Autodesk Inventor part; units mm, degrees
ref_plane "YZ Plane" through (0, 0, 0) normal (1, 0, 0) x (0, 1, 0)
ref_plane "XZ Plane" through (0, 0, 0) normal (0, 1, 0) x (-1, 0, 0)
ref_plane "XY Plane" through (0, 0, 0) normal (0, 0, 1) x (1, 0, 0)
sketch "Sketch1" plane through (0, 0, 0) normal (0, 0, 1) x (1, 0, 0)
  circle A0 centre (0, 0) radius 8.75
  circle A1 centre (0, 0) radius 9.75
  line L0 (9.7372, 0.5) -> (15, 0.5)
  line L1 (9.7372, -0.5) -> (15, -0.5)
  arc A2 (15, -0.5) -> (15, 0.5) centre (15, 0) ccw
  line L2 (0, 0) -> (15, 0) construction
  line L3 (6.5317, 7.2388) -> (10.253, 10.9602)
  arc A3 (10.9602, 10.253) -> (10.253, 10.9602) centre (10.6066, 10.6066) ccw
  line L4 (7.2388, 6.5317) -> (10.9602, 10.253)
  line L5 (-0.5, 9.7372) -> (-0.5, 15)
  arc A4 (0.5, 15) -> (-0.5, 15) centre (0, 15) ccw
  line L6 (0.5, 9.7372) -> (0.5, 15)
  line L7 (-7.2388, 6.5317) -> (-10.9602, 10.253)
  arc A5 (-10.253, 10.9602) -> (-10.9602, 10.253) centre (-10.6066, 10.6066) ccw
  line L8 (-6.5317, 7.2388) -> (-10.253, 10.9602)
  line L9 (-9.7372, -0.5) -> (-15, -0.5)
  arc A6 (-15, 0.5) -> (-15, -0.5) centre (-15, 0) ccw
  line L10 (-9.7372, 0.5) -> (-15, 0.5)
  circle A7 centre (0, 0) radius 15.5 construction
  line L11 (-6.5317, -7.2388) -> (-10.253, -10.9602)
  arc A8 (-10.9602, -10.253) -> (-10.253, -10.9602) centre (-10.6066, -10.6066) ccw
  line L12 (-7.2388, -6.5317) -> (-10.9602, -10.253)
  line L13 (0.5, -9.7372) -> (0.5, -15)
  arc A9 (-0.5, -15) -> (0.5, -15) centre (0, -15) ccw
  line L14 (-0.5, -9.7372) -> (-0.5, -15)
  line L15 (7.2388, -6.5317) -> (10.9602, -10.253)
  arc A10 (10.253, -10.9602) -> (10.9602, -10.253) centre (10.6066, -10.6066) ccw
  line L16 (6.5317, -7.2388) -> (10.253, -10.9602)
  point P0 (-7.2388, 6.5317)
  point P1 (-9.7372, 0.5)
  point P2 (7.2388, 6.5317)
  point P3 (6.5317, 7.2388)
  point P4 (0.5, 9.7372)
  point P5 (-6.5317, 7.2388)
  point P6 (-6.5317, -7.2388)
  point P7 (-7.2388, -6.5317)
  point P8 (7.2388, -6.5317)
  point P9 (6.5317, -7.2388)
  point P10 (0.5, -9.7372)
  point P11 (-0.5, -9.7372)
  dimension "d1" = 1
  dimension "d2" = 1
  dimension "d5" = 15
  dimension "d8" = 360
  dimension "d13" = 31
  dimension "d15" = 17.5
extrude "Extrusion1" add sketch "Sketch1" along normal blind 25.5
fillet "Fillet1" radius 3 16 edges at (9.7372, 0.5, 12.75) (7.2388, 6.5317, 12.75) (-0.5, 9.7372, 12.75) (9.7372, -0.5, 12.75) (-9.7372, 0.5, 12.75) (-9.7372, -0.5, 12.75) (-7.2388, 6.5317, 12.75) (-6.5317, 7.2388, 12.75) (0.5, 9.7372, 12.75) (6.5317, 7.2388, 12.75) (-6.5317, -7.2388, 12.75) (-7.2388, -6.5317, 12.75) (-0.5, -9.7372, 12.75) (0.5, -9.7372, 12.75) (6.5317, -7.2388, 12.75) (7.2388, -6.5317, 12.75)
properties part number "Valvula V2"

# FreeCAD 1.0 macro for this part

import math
import FreeCAD as App
import Part
import Sketcher
Q = App.Units.Quantity


def edges_at(feature, points):
    """Names of the edges that pass closest to the given points."""
    edges = feature.Shape.Edges
    near = lambda p: min(range(len(edges)), key=lambda i: edges[i].distToShape(Part.Vertex(*p))[0])
    return sorted({f"Edge{near(p) + 1}" for p in points})

doc = App.newDocument("Part")
body = doc.addObject("PartDesign::Body", "Body")

sketch1 = body.newObject("Sketcher::SketchObject", "Sketch")
sketch1.AttachmentSupport = (doc.getObject("XY_Plane"), [""])
sketch1.MapMode = "FlatFace"
sketch1.addGeometry([
    Part.ArcOfCircle(Part.Circle(App.Vector(0, 0, 0), App.Vector(0, 0, 1), 9.8), math.radians(-42), math.radians(-3)),
    Part.LineSegment(App.Vector(9.7, -0.5, 0), App.Vector(15, -0.5, 0)),
    Part.ArcOfCircle(Part.Circle(App.Vector(15, 0, 0), App.Vector(0, 0, 1), 0.5), math.radians(-90), math.radians(90)),
    Part.LineSegment(App.Vector(15, 0.5, 0), App.Vector(9.7, 0.5, 0)),
    Part.ArcOfCircle(Part.Circle(App.Vector(0, 0, 0), App.Vector(0, 0, 1), 9.8), math.radians(3), math.radians(42)),
    Part.LineSegment(App.Vector(7.2, 6.5, 0), App.Vector(11, 10.3, 0)),
    Part.ArcOfCircle(Part.Circle(App.Vector(10.6, 10.6, 0), App.Vector(0, 0, 1), 0.5), math.radians(-45), math.radians(135)),
    Part.LineSegment(App.Vector(10.3, 11, 0), App.Vector(6.5, 7.2, 0)),
    Part.ArcOfCircle(Part.Circle(App.Vector(0, 0, 0), App.Vector(0, 0, 1), 9.8), math.radians(48), math.radians(87)),
    Part.LineSegment(App.Vector(0.5, 9.7, 0), App.Vector(0.5, 15, 0)),
    Part.ArcOfCircle(Part.Circle(App.Vector(0, 15, 0), App.Vector(0, 0, 1), 0.5), math.radians(0), math.radians(180)),
    Part.LineSegment(App.Vector(-0.5, 15, 0), App.Vector(-0.5, 9.7, 0)),
    Part.ArcOfCircle(Part.Circle(App.Vector(0, 0, 0), App.Vector(0, 0, 1), 9.8), math.radians(93), math.radians(132)),
    Part.LineSegment(App.Vector(-6.5, 7.2, 0), App.Vector(-10.3, 11, 0)),
    Part.ArcOfCircle(Part.Circle(App.Vector(-10.6, 10.6, 0), App.Vector(0, 0, 1), 0.5), math.radians(45), math.radians(225)),
    Part.LineSegment(App.Vector(-11, 10.3, 0), App.Vector(-7.2, 6.5, 0)),
    Part.ArcOfCircle(Part.Circle(App.Vector(0, 0, 0), App.Vector(0, 0, 1), 9.8), math.radians(138), math.radians(177)),
    Part.LineSegment(App.Vector(-9.7, 0.5, 0), App.Vector(-15, 0.5, 0)),
    Part.ArcOfCircle(Part.Circle(App.Vector(-15, 0, 0), App.Vector(0, 0, 1), 0.5), math.radians(90), math.radians(270)),
    Part.LineSegment(App.Vector(-15, -0.5, 0), App.Vector(-9.7, -0.5, 0)),
    Part.ArcOfCircle(Part.Circle(App.Vector(0, 0, 0), App.Vector(0, 0, 1), 9.8), math.radians(-177), math.radians(-138)),
    Part.LineSegment(App.Vector(-7.2, -6.5, 0), App.Vector(-11, -10.3, 0)),
    Part.ArcOfCircle(Part.Circle(App.Vector(-10.6, -10.6, 0), App.Vector(0, 0, 1), 0.5), math.radians(135), math.radians(315)),
    Part.LineSegment(App.Vector(-10.3, -11, 0), App.Vector(-6.5, -7.2, 0)),
    Part.ArcOfCircle(Part.Circle(App.Vector(0, 0, 0), App.Vector(0, 0, 1), 9.8), math.radians(-132), math.radians(-93)),
    Part.LineSegment(App.Vector(-0.5, -9.7, 0), App.Vector(-0.5, -15, 0)),
    Part.ArcOfCircle(Part.Circle(App.Vector(0, -15, 0), App.Vector(0, 0, 1), 0.5), math.radians(180), math.radians(360)),
    Part.LineSegment(App.Vector(0.5, -15, 0), App.Vector(0.5, -9.7, 0)),
    Part.ArcOfCircle(Part.Circle(App.Vector(0, 0, 0), App.Vector(0, 0, 1), 9.8), math.radians(-87), math.radians(-48)),
    Part.LineSegment(App.Vector(6.5, -7.2, 0), App.Vector(10.3, -11, 0)),
    Part.ArcOfCircle(Part.Circle(App.Vector(10.6, -10.6, 0), App.Vector(0, 0, 1), 0.5), math.radians(-135), math.radians(45)),
    Part.LineSegment(App.Vector(11, -10.3, 0), App.Vector(7.2, -6.5, 0)),
    Part.Circle(App.Vector(0, 0, 0), App.Vector(0, 0, 1), 8.8),
], False)
sketch1.addConstraint([
    Sketcher.Constraint("Coincident", 0, 2, 1, 1),
    Sketcher.Constraint("Tangent", 1, 2, 2, 1),
    Sketcher.Constraint("Tangent", 2, 2, 3, 1),
    Sketcher.Constraint("Coincident", 3, 2, 4, 1),
    Sketcher.Constraint("Coincident", 4, 2, 5, 1),
    Sketcher.Constraint("Tangent", 5, 2, 6, 1),
    Sketcher.Constraint("Tangent", 6, 2, 7, 1),
    Sketcher.Constraint("Coincident", 7, 2, 8, 1),
    Sketcher.Constraint("Coincident", 8, 2, 9, 1),
    Sketcher.Constraint("Tangent", 9, 2, 10, 1),
    Sketcher.Constraint("Tangent", 10, 2, 11, 1),
    Sketcher.Constraint("Coincident", 11, 2, 12, 1),
    Sketcher.Constraint("Coincident", 12, 2, 13, 1),
    Sketcher.Constraint("Tangent", 13, 2, 14, 1),
    Sketcher.Constraint("Tangent", 14, 2, 15, 1),
    Sketcher.Constraint("Coincident", 15, 2, 16, 1),
    Sketcher.Constraint("Coincident", 16, 2, 17, 1),
    Sketcher.Constraint("Tangent", 17, 2, 18, 1),
    Sketcher.Constraint("Tangent", 18, 2, 19, 1),
    Sketcher.Constraint("Coincident", 19, 2, 20, 1),
    Sketcher.Constraint("Coincident", 20, 2, 21, 1),
    Sketcher.Constraint("Tangent", 21, 2, 22, 1),
    Sketcher.Constraint("Tangent", 22, 2, 23, 1),
    Sketcher.Constraint("Coincident", 23, 2, 24, 1),
    Sketcher.Constraint("Coincident", 24, 2, 25, 1),
    Sketcher.Constraint("Tangent", 25, 2, 26, 1),
    Sketcher.Constraint("Tangent", 26, 2, 27, 1),
    Sketcher.Constraint("Coincident", 27, 2, 28, 1),
    Sketcher.Constraint("Coincident", 28, 2, 29, 1),
    Sketcher.Constraint("Tangent", 29, 2, 30, 1),
    Sketcher.Constraint("Tangent", 30, 2, 31, 1),
    Sketcher.Constraint("Coincident", 31, 2, 0, 1),
    Sketcher.Constraint("Horizontal", 1),
    Sketcher.Constraint("Horizontal", 3),
    Sketcher.Constraint("Vertical", 9),
    Sketcher.Constraint("Vertical", 11),
    Sketcher.Constraint("Horizontal", 17),
    Sketcher.Constraint("Horizontal", 19),
    Sketcher.Constraint("Vertical", 25),
    Sketcher.Constraint("Vertical", 27),
    Sketcher.Constraint("Coincident", 0, 3, -1, 1),
    Sketcher.Constraint("Coincident", 4, 3, -1, 1),
    Sketcher.Constraint("Coincident", 8, 3, -1, 1),
    Sketcher.Constraint("Coincident", 12, 3, -1, 1),
    Sketcher.Constraint("Coincident", 16, 3, -1, 1),
    Sketcher.Constraint("Coincident", 20, 3, -1, 1),
    Sketcher.Constraint("Coincident", 24, 3, -1, 1),
    Sketcher.Constraint("Coincident", 28, 3, -1, 1),
    Sketcher.Constraint("Coincident", 32, 3, -1, 1),
    Sketcher.Constraint("Equal", 0, 4),
    Sketcher.Constraint("Equal", 2, 6),
    Sketcher.Constraint("Equal", 4, 8),
    Sketcher.Constraint("Equal", 6, 10),
    Sketcher.Constraint("Equal", 8, 12),
    Sketcher.Constraint("Equal", 10, 14),
    Sketcher.Constraint("Equal", 12, 16),
    Sketcher.Constraint("Equal", 14, 18),
    Sketcher.Constraint("Equal", 16, 20),
    Sketcher.Constraint("Equal", 18, 22),
    Sketcher.Constraint("Equal", 20, 24),
    Sketcher.Constraint("Equal", 22, 26),
    Sketcher.Constraint("Equal", 24, 28),
    Sketcher.Constraint("Equal", 26, 30),
    Sketcher.Constraint("Symmetric", 2, 3, 18, 3, -1, 1),
    Sketcher.Constraint("Symmetric", 6, 3, 22, 3, -1, 1),
    Sketcher.Constraint("Symmetric", 10, 3, 26, 3, -1, 1),
    Sketcher.Constraint("Symmetric", 14, 3, 30, 3, -1, 1),
    Sketcher.Constraint("Symmetric", 6, 3, 14, 3, -2),
    Sketcher.Constraint("PointOnObject", 2, 3, -1),
    Sketcher.Constraint("PointOnObject", 10, 3, -2),
    Sketcher.Constraint("Parallel", 5, 7),
    Sketcher.Constraint("Perpendicular", 7, 13),
    Sketcher.Constraint("Parallel", 13, 15),
    Sketcher.Constraint("Perpendicular", 15, 21),
    Sketcher.Constraint("Parallel", 21, 23),
    Sketcher.Constraint("Perpendicular", 23, 29),
    Sketcher.Constraint("Parallel", 29, 31),
    Sketcher.Constraint("Horizontal", 7, 2, 12, 2),
    Sketcher.Constraint("Equal", 19, 9),
    Sketcher.Constraint("Equal", 5, 7),
    Sketcher.Constraint("Diameter", 32, Q("17.5 mm")),
    Sketcher.Constraint("Radius", 2, Q("0.5 mm")),
    Sketcher.Constraint("DistanceX", -1, 1, 2, 3, Q("15 mm")),
    Sketcher.Constraint("Radius", 0, Q("9.75 mm")),
    Sketcher.Constraint("DistanceY", -1, 1, 5, 2, Q("10.253 mm")),
])
pad1 = body.newObject("PartDesign::Pad", "Pad")
pad1.Profile = sketch1
pad1.Length = 25.5
doc.recompute()

fillet = body.newObject("PartDesign::Fillet", "Fillet")
fillet.Base = (pad1, edges_at(pad1, [
    (9.737, 0.5, 12.75),
    (7.239, 6.532, 12.75),
    (-0.5, 9.737, 12.75),
    (9.737, -0.5, 12.75),
    (-9.737, 0.5, 12.75),
    (-9.737, -0.5, 12.75),
    (-7.239, 6.532, 12.75),
    (-6.532, 7.239, 12.75),
    (0.5, 9.737, 12.75),
    (6.532, 7.239, 12.75),
    (-6.532, -7.239, 12.75),
    (-7.239, -6.532, 12.75),
    (-0.5, -9.737, 12.75),
    (0.5, -9.737, 12.75),
    (6.532, -7.239, 12.75),
    (7.239, -6.532, 12.75),
]))
fillet.Radius = 3

doc.recompute()
